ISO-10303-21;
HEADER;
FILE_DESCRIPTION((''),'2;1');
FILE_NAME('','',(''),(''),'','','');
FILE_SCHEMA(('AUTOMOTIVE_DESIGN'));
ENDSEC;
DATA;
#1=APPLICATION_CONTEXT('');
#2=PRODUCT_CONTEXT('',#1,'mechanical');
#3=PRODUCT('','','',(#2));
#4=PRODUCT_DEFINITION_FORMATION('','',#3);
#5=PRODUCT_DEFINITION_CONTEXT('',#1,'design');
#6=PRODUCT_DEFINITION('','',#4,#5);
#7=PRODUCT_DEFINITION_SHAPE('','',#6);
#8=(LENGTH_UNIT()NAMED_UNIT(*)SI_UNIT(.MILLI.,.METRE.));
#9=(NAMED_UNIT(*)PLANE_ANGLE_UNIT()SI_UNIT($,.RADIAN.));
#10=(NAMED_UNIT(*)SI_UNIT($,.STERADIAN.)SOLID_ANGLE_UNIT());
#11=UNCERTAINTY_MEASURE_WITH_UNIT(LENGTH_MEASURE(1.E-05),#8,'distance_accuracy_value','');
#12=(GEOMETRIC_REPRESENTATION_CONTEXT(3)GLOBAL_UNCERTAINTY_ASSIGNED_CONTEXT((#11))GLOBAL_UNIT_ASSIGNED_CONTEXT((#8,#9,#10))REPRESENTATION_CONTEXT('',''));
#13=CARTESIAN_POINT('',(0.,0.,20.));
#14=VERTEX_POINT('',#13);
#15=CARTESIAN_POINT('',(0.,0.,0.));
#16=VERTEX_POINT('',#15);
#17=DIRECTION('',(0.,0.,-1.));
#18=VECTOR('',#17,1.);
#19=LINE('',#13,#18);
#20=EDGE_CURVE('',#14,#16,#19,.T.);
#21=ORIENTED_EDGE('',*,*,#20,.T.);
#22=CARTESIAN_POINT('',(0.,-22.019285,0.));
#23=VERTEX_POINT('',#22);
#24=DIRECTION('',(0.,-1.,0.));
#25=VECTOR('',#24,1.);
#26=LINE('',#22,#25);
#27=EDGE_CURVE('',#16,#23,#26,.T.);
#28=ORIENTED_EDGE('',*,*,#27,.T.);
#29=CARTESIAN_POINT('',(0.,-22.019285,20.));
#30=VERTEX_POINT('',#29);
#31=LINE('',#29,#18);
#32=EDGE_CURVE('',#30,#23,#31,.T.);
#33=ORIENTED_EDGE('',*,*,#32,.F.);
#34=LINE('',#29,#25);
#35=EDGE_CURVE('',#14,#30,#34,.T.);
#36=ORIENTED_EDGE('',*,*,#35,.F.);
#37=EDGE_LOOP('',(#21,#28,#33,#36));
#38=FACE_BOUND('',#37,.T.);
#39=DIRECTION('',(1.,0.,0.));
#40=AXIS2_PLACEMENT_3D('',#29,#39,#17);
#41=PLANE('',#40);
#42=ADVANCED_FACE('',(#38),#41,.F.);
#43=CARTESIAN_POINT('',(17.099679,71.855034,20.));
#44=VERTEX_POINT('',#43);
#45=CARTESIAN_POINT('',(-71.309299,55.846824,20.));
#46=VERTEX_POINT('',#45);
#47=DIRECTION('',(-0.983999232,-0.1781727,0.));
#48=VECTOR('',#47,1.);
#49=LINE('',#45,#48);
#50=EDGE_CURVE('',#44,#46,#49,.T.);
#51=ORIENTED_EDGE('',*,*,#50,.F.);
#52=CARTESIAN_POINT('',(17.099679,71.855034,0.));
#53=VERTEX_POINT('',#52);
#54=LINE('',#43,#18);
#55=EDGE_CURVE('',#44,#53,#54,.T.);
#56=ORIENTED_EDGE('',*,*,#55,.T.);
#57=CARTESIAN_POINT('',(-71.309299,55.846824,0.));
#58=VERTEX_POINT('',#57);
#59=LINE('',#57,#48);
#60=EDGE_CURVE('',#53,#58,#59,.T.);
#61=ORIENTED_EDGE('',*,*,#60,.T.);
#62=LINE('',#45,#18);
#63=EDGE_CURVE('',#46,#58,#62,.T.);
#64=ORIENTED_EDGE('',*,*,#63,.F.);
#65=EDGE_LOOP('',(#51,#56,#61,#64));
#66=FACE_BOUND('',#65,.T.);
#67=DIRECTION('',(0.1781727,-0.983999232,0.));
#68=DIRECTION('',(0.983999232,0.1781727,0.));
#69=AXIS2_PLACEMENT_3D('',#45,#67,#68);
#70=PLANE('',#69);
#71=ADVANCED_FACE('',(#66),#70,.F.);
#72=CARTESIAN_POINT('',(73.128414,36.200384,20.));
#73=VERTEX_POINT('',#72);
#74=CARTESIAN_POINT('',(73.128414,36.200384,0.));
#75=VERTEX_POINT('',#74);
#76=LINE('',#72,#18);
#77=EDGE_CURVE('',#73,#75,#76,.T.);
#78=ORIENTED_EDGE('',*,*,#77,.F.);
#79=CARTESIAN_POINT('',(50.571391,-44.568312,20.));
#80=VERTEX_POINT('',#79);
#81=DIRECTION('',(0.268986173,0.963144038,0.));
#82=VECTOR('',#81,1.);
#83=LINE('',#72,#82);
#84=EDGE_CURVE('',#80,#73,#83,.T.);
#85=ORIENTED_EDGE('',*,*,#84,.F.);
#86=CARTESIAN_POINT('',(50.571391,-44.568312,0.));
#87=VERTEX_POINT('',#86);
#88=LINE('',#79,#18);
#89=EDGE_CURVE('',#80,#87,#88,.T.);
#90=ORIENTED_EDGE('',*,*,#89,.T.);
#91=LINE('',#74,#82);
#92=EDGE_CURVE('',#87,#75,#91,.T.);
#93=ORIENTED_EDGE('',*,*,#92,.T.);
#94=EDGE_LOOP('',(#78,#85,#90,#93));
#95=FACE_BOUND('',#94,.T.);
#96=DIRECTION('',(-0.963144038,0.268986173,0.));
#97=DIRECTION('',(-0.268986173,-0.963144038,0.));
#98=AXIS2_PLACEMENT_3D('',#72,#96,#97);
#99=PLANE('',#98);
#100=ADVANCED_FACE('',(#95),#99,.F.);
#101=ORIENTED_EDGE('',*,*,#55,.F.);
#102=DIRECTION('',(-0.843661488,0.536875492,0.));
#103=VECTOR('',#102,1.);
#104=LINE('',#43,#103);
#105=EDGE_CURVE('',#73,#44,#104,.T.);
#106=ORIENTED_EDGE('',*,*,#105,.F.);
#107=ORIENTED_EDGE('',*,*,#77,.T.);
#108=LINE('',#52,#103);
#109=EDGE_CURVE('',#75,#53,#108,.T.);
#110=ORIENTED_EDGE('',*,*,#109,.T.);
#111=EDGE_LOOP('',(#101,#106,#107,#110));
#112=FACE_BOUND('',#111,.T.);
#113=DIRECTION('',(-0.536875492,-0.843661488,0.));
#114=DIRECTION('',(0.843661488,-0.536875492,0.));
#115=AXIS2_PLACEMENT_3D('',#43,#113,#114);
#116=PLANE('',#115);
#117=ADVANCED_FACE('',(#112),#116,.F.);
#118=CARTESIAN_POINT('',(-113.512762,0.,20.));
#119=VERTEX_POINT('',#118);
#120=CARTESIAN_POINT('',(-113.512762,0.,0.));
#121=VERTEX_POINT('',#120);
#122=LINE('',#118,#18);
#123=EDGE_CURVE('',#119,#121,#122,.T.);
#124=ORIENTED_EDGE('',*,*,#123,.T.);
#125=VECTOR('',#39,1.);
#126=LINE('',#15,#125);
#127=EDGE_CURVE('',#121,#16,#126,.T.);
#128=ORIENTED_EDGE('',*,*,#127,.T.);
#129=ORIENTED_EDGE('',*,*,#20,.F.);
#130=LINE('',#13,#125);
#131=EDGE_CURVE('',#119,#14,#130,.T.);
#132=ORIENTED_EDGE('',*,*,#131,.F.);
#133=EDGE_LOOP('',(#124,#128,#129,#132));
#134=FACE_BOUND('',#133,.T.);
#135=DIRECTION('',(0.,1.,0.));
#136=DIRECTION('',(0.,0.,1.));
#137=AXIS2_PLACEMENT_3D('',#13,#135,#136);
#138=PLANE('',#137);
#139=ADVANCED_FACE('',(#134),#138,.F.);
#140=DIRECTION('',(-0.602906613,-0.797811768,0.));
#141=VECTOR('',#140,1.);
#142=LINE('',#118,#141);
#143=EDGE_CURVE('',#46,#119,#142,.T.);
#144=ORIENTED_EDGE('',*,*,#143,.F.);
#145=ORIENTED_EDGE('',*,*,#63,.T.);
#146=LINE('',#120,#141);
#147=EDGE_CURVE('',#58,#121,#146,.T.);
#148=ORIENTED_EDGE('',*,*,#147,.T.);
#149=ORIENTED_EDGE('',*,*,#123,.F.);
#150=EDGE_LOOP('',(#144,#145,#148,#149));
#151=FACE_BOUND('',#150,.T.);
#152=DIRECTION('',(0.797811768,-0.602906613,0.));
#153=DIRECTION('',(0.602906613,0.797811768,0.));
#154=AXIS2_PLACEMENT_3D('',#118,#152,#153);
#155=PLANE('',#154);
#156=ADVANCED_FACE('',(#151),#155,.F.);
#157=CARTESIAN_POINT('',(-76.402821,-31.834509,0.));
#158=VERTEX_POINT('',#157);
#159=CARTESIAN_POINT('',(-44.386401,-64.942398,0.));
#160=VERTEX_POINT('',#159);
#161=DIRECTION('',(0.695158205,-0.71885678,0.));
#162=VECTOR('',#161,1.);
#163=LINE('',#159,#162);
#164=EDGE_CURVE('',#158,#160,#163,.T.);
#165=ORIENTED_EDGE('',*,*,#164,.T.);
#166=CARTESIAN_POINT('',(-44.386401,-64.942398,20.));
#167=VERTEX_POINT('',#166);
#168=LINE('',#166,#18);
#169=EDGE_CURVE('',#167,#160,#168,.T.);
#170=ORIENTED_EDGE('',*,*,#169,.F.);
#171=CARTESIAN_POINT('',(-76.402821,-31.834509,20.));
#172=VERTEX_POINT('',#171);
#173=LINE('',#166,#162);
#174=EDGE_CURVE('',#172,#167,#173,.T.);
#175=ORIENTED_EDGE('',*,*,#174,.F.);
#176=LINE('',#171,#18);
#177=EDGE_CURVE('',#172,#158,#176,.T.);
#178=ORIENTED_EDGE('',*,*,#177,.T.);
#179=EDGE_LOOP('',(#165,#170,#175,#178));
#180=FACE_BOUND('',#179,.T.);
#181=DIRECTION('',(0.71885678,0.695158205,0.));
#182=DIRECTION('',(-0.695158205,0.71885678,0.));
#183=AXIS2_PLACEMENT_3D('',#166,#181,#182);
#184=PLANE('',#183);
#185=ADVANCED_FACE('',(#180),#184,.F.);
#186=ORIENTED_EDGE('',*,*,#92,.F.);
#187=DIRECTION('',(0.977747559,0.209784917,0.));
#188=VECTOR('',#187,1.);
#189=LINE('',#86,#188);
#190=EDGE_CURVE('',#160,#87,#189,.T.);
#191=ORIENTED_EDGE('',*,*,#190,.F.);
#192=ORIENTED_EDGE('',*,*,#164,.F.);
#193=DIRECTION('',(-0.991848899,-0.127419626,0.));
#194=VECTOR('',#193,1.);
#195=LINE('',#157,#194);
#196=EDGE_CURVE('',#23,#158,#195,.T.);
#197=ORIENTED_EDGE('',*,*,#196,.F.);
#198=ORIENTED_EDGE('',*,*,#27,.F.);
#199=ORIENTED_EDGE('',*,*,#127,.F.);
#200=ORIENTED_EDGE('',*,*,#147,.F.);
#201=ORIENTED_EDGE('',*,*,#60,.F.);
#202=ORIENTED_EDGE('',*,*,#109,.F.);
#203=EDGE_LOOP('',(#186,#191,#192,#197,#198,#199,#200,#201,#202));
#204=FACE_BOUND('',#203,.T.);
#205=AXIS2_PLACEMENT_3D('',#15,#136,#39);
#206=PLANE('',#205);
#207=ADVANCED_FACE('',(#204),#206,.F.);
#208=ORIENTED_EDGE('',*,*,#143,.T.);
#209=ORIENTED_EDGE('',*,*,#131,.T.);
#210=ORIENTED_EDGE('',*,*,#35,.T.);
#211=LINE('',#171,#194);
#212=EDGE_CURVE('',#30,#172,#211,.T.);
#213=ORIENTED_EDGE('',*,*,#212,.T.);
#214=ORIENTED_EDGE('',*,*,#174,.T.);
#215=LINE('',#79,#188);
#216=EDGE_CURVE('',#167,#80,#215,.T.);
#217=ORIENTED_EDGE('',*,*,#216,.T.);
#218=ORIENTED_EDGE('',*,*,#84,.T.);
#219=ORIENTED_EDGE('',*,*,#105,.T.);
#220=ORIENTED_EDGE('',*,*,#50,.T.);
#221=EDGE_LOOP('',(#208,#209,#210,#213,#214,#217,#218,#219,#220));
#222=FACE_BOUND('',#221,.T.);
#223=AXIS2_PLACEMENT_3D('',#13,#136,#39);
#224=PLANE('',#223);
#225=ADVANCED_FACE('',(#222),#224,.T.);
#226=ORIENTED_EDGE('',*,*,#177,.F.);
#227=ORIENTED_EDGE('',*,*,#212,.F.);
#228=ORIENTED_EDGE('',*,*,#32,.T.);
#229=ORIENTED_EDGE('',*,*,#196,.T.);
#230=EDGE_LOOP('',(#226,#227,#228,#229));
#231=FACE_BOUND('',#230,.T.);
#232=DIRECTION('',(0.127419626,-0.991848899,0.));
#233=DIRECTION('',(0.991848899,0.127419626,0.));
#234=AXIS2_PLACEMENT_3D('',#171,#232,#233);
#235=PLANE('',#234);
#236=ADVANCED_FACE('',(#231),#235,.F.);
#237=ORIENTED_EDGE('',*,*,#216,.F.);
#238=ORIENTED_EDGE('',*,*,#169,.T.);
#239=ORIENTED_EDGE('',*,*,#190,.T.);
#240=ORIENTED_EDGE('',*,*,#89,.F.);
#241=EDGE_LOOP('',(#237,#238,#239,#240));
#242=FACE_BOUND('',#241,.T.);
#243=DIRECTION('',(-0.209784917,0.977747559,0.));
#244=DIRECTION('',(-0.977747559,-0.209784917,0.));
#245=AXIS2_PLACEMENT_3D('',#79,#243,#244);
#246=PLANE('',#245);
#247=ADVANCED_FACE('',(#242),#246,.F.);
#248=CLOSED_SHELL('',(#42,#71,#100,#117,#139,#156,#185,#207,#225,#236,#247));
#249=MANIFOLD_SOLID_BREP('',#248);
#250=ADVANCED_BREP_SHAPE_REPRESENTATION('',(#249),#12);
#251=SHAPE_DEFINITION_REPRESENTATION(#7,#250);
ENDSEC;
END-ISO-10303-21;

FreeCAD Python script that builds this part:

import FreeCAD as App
import Part
import Sketcher
from FreeCAD import Vector

doc = App.newDocument("Part")
body = doc.addObject("PartDesign::Body", "Body")

# Sketch on XY plane
sketch1 = body.newObject("Sketcher::SketchObject", "Sketch")
sketch1.AttachmentSupport = (doc.getObject("XY_Plane"), [""])
sketch1.MapMode = "FlatFace"
sketch1.addGeometry([
    Part.LineSegment(Vector(-113.512762, 0, 0), Vector(0, 0, 0)),  # 0
    Part.LineSegment(Vector(0, 0, 0), Vector(0, -22.019285, 0)),  # 1
    Part.LineSegment(Vector(0, -22.019285, 0), Vector(-76.402821, -31.834509, 0)),  # 2
    Part.LineSegment(Vector(-76.402821, -31.834509, 0), Vector(-44.386401, -64.942398, 0)),  # 3
    Part.LineSegment(Vector(-44.386401, -64.942398, 0), Vector(50.571391, -44.568312, 0)),  # 4
    Part.LineSegment(Vector(50.571391, -44.568312, 0), Vector(73.128414, 36.200384, 0)),  # 5
    Part.LineSegment(Vector(73.128414, 36.200384, 0), Vector(17.099679, 71.855034, 0)),  # 6
    Part.LineSegment(Vector(17.099679, 71.855034, 0), Vector(-71.309299, 55.846824, 0)),  # 7
    Part.LineSegment(Vector(-71.309299, 55.846824, 0), Vector(-113.512762, 0, 0)),  # 8
], False)
sketch1.addConstraint([
    Sketcher.Constraint("Coincident", 0, 2, 1, 1),
    Sketcher.Constraint("Coincident", 1, 2, 2, 1),
    Sketcher.Constraint("Coincident", 2, 2, 3, 1),
    Sketcher.Constraint("Coincident", 3, 2, 4, 1),
    Sketcher.Constraint("Coincident", 4, 2, 5, 1),
    Sketcher.Constraint("Coincident", 5, 2, 6, 1),
    Sketcher.Constraint("Coincident", 6, 2, 7, 1),
    Sketcher.Constraint("Coincident", 7, 2, 8, 1),
    Sketcher.Constraint("Coincident", 8, 2, 0, 1),
    Sketcher.Constraint("Horizontal", 0),
    Sketcher.Constraint("Vertical", 1),
    Sketcher.Constraint("Coincident", 0, 2, -1, 1),
    Sketcher.Constraint("Distance", 8, 70.0),
    Sketcher.Constraint("DistanceX", 3, 2, -1, 1, 44.386401),
    Sketcher.Constraint("DistanceX", 7, 2, -1, 1, 71.309299),
    Sketcher.Constraint("DistanceX", 2, 2, 6, 2, 93.5025),
    Sketcher.Constraint("DistanceX", 0, 1, 0, 2, 113.512762),
    Sketcher.Constraint("DistanceY", 1, 2, 1, 1, 22.019285),
    Sketcher.Constraint("DistanceX", 2, 2, -1, 1, 76.402821),
    Sketcher.Constraint("DistanceY", 2, 2, -1, 1, 31.834509),
    Sketcher.Constraint("DistanceX", -1, 1, 4, 2, 50.571391),
    Sketcher.Constraint("DistanceY", 3, 2, 2, 2, 33.107889),
    Sketcher.Constraint("DistanceY", 1, 2, 5, 2, 58.219669),
    Sketcher.Constraint("DistanceY", 5, 2, 6, 2, 35.65465),
    Sketcher.Constraint("Distance", 4, 97.118925),
    Sketcher.Constraint("Distance", 5, 83.859416),
])
pad1 = body.newObject("PartDesign::Pad", "Pad")
pad1.Profile = sketch1
pad1.Length = 20

doc.recompute()
